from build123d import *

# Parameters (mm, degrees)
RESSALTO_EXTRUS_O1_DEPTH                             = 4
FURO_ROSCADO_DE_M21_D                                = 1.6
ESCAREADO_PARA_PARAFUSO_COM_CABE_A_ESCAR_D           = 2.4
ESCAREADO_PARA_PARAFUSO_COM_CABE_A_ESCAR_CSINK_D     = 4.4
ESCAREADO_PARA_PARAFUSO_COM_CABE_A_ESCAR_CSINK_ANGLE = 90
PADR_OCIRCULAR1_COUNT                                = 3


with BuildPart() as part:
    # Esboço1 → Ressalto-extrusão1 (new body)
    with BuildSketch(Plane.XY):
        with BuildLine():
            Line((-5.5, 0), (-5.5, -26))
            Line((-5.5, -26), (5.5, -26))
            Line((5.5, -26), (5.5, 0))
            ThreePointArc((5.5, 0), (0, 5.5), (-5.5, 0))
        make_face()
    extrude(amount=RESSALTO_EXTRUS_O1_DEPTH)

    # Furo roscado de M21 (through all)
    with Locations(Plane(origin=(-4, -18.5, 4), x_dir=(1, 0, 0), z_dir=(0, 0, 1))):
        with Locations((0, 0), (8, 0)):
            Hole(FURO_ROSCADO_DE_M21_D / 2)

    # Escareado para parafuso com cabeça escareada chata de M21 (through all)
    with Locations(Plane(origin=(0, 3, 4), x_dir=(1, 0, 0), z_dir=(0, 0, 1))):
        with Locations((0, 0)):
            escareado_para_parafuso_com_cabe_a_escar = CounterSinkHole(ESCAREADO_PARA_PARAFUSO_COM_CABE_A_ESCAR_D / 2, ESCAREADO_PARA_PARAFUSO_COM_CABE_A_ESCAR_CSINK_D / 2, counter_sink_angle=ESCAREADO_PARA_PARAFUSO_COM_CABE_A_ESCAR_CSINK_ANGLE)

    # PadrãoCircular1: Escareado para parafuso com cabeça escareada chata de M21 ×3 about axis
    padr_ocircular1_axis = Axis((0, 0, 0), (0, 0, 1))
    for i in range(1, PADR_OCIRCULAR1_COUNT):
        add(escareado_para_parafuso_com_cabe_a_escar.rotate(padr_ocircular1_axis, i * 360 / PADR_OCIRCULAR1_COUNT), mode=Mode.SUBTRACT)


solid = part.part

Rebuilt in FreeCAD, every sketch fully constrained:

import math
import FreeCAD as App
import Part
import Sketcher

doc = App.newDocument("Part")
body = doc.addObject("PartDesign::Body", "Body")

sketch1 = doc.addObject("Sketcher::SketchObject", "Sketch")
body.addObject(sketch1)
sketch1.AttachmentSupport = (doc.XY_Plane, [""])
sketch1.MapMode = "FlatFace"
sketch1.addGeometry([
    Part.LineSegment(App.Vector(-5.5, 0, 0), App.Vector(-5.5, -26, 0)),
    Part.LineSegment(App.Vector(-5.5, -26, 0), App.Vector(5.5, -26, 0)),
    Part.LineSegment(App.Vector(5.5, -26, 0), App.Vector(5.5, 0, 0)),
    Part.ArcOfCircle(Part.Circle(App.Vector(0, 0, 0), App.Vector(0, 0, 1), 5.5), math.radians(0), math.radians(180)),
], False)
sketch1.addConstraint([
    Sketcher.Constraint("Coincident", 0, 2, 1, 1),
    Sketcher.Constraint("Coincident", 1, 2, 2, 1),
    Sketcher.Constraint("Tangent", 2, 2, 3, 1),
    Sketcher.Constraint("Tangent", 3, 2, 0, 1),
    Sketcher.Constraint("Vertical", 0),
    Sketcher.Constraint("Horizontal", 1),
    Sketcher.Constraint("Vertical", 2),
    Sketcher.Constraint("Coincident", 3, 3, -1, 1),
    Sketcher.Constraint("Radius", 3, 5.5),
    Sketcher.Constraint("DistanceY", 0, 2, 0, 1, 26.0),
])
pad1 = doc.addObject("PartDesign::Pad", "Pad")
body.addObject(pad1)
pad1.Profile = sketch1
pad1.Length = 4

sketch2 = doc.addObject("Sketcher::SketchObject", "Sketch001")
body.addObject(sketch2)
sketch2.AttachmentSupport = (doc.XY_Plane, [""])
sketch2.MapMode = "FlatFace"
sketch2.AttachmentOffset = App.Placement(App.Vector(0, 0, 4), App.Rotation())
sketch2.addGeometry([
    Part.Circle(App.Vector(-4, -18.5, 0), App.Vector(0, 0, 1), 0.8),
    Part.Circle(App.Vector(4, -18.5, 0), App.Vector(0, 0, 1), 0.8),
], False)
sketch2.addConstraint([
    Sketcher.Constraint("Equal", 0, 1),
    Sketcher.Constraint("Symmetric", 0, 3, 1, 3, -2),
    Sketcher.Constraint("Diameter", 0, 1.6),
    Sketcher.Constraint("DistanceX", 0, 3, -1, 1, 4.0),
    Sketcher.Constraint("DistanceY", 0, 3, -1, 1, 18.5),
])
doc.recompute()
hole = doc.addObject("PartDesign::Hole", "Hole")
body.addObject(hole)
hole.Profile = sketch2
hole.ThreadType = "None"
hole.Diameter = 1.6
hole.DepthType = "ThroughAll"

sketch3 = doc.addObject("Sketcher::SketchObject", "Sketch002")
body.addObject(sketch3)
sketch3.AttachmentSupport = (doc.XY_Plane, [""])
sketch3.MapMode = "FlatFace"
sketch3.AttachmentOffset = App.Placement(App.Vector(0, 0, 4), App.Rotation())
sketch3.addGeometry(Part.Circle(App.Vector(0, 3, 0), App.Vector(0, 0, 1), 1.2), False)
sketch3.addConstraint([
    Sketcher.Constraint("PointOnObject", 0, 3, -2),
    Sketcher.Constraint("Diameter", 0, 2.4),
    Sketcher.Constraint("DistanceY", -1, 1, 0, 3, 3.0),
])
doc.recompute()
hole2 = doc.addObject("PartDesign::Hole", "Hole001")
body.addObject(hole2)
hole2.Profile = sketch3
hole2.ThreadType = "None"
hole2.Diameter = 2.4
hole2.DepthType = "ThroughAll"
hole2.HoleCutType = "Countersink"
hole2.HoleCutDiameter = 4.4
hole2.HoleCutCountersinkAngle = 90
doc.recompute()

polarpattern = doc.addObject("PartDesign::PolarPattern", "PolarPattern")
body.addObject(polarpattern)
polarpattern.Originals = [hole2]
polarpattern.Axis = (doc.Z_Axis, [""])
polarpattern.Angle = 360
polarpattern.Occurrences = 3
body.Tip = polarpattern

doc.recompute()
